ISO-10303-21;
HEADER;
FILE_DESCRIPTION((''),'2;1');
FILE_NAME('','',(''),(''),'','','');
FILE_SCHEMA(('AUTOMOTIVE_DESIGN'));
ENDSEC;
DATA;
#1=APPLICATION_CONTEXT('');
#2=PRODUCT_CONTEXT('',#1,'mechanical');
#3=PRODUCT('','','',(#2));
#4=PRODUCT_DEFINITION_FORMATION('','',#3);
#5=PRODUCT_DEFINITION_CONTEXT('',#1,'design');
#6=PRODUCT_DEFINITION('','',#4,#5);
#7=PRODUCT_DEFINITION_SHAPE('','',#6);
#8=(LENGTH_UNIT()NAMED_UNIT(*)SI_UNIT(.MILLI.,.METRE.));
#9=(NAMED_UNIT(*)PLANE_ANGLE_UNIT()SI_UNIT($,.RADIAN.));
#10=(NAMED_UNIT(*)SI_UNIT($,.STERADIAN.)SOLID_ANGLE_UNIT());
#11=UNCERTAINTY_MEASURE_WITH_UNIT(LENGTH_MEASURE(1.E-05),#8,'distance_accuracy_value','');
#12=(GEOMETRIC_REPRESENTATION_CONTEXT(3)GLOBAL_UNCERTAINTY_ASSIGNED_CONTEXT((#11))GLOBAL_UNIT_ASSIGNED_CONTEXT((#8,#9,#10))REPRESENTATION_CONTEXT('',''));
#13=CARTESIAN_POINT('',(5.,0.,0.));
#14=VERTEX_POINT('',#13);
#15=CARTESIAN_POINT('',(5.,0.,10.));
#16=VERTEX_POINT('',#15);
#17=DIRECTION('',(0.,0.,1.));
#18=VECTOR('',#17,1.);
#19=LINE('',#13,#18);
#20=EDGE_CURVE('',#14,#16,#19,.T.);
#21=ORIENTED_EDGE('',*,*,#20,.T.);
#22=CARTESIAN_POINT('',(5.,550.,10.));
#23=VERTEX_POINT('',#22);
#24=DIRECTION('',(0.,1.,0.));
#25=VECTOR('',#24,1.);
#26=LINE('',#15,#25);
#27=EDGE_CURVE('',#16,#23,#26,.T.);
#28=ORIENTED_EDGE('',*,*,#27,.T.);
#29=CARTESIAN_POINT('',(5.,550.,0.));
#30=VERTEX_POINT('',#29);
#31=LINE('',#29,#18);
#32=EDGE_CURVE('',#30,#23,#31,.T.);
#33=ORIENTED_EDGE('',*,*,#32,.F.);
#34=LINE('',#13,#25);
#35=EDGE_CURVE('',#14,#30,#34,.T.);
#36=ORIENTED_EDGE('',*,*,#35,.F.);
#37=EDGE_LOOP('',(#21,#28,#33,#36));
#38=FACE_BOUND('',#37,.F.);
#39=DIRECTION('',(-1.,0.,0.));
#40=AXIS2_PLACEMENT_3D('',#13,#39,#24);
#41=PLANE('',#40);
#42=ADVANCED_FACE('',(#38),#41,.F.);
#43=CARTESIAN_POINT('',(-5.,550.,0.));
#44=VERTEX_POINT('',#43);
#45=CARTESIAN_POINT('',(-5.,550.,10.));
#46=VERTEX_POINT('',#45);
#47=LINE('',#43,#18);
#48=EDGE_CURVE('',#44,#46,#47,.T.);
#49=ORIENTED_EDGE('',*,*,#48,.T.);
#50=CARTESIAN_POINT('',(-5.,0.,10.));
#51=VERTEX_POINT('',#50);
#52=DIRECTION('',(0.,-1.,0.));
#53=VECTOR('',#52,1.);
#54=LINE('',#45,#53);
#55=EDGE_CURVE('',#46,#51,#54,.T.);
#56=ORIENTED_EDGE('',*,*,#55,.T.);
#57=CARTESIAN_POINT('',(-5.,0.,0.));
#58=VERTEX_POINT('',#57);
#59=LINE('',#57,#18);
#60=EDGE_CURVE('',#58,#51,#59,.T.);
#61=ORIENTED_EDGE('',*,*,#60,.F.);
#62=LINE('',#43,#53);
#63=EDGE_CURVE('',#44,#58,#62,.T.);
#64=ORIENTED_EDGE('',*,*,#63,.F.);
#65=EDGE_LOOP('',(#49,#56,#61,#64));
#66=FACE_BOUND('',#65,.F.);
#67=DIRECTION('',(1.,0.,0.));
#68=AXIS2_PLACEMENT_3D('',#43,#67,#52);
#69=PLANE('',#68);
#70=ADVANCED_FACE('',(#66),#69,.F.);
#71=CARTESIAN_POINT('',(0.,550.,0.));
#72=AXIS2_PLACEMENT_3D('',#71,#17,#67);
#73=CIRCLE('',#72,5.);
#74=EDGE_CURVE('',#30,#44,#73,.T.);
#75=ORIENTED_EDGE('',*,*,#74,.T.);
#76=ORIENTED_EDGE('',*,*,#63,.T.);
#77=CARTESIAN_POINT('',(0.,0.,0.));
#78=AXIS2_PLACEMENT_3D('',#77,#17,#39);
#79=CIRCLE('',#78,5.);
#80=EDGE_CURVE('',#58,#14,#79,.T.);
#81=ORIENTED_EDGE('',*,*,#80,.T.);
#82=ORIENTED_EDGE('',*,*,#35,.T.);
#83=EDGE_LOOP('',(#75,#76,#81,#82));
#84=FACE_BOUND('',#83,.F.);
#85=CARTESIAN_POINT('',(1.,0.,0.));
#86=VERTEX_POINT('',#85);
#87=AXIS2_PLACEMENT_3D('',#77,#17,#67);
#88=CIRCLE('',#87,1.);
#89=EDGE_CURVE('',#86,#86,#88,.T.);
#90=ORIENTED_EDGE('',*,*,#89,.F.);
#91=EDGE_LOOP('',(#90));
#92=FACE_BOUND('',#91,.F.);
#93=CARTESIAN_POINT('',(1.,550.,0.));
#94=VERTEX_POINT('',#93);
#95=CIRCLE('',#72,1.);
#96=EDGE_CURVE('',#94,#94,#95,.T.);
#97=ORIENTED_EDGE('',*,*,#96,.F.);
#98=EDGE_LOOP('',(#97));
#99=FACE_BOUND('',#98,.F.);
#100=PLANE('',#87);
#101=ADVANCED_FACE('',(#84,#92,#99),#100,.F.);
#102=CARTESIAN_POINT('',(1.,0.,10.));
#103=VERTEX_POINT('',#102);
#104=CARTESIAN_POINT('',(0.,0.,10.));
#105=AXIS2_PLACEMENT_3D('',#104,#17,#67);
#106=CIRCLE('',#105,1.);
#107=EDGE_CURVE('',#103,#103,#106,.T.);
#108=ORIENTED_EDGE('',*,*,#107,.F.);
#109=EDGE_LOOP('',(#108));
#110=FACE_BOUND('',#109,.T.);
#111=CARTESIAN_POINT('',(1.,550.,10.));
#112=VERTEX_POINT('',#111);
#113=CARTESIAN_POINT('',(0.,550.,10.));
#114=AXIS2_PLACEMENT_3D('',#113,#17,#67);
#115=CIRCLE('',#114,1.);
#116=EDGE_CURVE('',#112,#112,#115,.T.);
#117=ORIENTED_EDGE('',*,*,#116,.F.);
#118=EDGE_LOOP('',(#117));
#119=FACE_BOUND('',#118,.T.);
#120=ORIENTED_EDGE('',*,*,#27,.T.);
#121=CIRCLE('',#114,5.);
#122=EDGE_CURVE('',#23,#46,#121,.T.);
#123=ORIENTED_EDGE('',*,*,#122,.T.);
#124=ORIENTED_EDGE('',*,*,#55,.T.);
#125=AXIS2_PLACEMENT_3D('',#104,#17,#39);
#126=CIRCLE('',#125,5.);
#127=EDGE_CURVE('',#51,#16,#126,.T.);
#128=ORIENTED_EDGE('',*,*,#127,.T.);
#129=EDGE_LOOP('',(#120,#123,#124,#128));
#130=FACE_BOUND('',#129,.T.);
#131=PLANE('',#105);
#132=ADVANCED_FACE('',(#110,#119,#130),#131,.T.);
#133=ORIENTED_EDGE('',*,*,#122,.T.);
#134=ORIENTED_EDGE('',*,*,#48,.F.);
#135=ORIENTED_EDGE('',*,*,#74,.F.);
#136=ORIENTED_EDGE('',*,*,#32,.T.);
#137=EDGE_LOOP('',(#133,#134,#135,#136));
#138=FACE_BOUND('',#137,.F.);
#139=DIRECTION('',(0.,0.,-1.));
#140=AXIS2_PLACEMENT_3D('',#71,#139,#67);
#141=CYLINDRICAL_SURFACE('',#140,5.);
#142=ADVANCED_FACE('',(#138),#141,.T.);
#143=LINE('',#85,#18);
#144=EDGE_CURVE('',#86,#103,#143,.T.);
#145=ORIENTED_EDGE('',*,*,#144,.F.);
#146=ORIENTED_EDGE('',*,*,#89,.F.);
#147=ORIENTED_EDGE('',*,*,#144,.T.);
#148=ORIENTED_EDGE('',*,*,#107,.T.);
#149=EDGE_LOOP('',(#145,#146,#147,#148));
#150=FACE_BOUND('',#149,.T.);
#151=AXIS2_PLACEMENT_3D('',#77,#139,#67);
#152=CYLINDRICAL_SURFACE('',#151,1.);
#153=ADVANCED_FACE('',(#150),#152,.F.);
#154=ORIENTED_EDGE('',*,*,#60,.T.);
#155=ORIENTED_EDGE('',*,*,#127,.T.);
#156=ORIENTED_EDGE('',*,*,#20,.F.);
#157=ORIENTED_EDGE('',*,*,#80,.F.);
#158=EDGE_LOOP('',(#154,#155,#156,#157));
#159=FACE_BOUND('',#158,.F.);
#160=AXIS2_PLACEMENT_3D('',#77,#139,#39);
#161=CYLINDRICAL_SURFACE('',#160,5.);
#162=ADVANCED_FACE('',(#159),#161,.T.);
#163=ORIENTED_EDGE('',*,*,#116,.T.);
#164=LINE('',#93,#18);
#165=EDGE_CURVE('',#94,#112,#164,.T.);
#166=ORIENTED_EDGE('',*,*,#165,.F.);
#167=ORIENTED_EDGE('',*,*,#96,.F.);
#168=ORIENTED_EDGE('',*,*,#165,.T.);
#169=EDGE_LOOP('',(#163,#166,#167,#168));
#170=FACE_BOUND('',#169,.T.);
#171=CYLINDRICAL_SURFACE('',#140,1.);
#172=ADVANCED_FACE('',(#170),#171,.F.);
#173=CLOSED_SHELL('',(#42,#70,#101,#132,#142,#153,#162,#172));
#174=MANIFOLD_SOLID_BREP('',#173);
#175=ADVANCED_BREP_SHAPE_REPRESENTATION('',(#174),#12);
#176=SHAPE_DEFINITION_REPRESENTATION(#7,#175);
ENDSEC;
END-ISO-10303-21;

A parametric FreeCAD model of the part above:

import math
import FreeCAD as App
import Part
import Sketcher

V = App.Vector

doc = App.newDocument("Part")
body = doc.addObject("PartDesign::Body", "Body")

# Sketch on XY plane
sketch1 = body.newObject("Sketcher::SketchObject", "Sketch")
sketch1.AttachmentSupport = (doc.getObject("XY_Plane"), [""])
sketch1.MapMode = "FlatFace"
sketch1.addGeometry(Part.ArcOfCircle(Part.Circle(V(0, 0, 0), V(0, 0, 1), 5), math.radians(180), math.radians(360)), False)
sketch1.addGeometry(Part.LineSegment(V(5, 0, 0), V(5, 550, 0)), False)
sketch1.addGeometry(Part.ArcOfCircle(Part.Circle(V(0, 550, 0), V(0, 0, 1), 5), math.radians(0), math.radians(180)), False)
sketch1.addGeometry(Part.LineSegment(V(-5, 550, 0), V(-5, 0, 0)), False)
sketch1.addGeometry(Part.Circle(V(0, 0, 0), V(0, 0, 1), 1), False)
sketch1.addGeometry(Part.Circle(V(0, 550, 0), V(0, 0, 1), 1), False)
sketch1.addConstraint(Sketcher.Constraint("Tangent", 0, 2, 1, 1))
sketch1.addConstraint(Sketcher.Constraint("Tangent", 1, 2, 2, 1))
sketch1.addConstraint(Sketcher.Constraint("Tangent", 2, 2, 3, 1))
sketch1.addConstraint(Sketcher.Constraint("Tangent", 3, 2, 0, 1))
sketch1.addConstraint(Sketcher.Constraint("Vertical", 1))
sketch1.addConstraint(Sketcher.Constraint("Vertical", 3))
sketch1.addConstraint(Sketcher.Constraint("Coincident", 0, 3, -1, 1))
sketch1.addConstraint(Sketcher.Constraint("Coincident", 4, 3, -1, 1))
sketch1.addConstraint(Sketcher.Constraint("Coincident", 5, 3, 2, 3))
sketch1.addConstraint(Sketcher.Constraint("Equal", 4, 5))
sketch1.addConstraint(Sketcher.Constraint("Diameter", 4, 2.0))
sketch1.addConstraint(Sketcher.Constraint("Radius", 0, 5.0))
sketch1.addConstraint(Sketcher.Constraint("DistanceY", 1, 1, 1, 2, 550.0))
pad1 = body.newObject("PartDesign::Pad", "Pad")
pad1.Profile = sketch1
pad1.Length = 10

doc.recompute()
